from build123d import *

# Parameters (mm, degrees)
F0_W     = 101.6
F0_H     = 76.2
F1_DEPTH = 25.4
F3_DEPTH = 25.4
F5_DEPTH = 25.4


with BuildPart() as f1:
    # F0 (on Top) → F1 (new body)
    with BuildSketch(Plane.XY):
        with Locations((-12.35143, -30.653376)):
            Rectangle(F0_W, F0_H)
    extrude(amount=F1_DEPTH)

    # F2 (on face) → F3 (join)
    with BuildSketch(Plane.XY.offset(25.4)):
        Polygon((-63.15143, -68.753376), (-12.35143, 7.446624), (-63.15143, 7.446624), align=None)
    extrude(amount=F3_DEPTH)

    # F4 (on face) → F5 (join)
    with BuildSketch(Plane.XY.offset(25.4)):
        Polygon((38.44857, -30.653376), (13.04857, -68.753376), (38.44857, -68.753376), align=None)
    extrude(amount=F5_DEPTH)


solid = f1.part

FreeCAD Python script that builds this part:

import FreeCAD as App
import Part
import Sketcher
Q = App.Units.Quantity

doc = App.newDocument("Part")
body = doc.addObject("PartDesign::Body", "Body")

sketch1 = body.newObject("Sketcher::SketchObject", "Sketch")
sketch1.AttachmentSupport = (doc.getObject("XY_Plane"), [""])
sketch1.MapMode = "FlatFace"
sketch1.addGeometry([
    Part.LineSegment(App.Vector(-63, 7, 0), App.Vector(-63, -69, 0)),
    Part.LineSegment(App.Vector(-63, -69, 0), App.Vector(38, -69, 0)),
    Part.LineSegment(App.Vector(38, -69, 0), App.Vector(38, 7, 0)),
    Part.LineSegment(App.Vector(38, 7, 0), App.Vector(-63, 7, 0)),
], False)
sketch1.addConstraint([
    Sketcher.Constraint("Coincident", 0, 2, 1, 1),
    Sketcher.Constraint("Coincident", 1, 2, 2, 1),
    Sketcher.Constraint("Coincident", 2, 2, 3, 1),
    Sketcher.Constraint("Coincident", 3, 2, 0, 1),
    Sketcher.Constraint("Vertical", 0),
    Sketcher.Constraint("Horizontal", 1),
    Sketcher.Constraint("Vertical", 2),
    Sketcher.Constraint("Horizontal", 3),
    Sketcher.Constraint("DistanceX", 1, 1, 1, 2, Q("4 in")),
    Sketcher.Constraint("DistanceY", 0, 2, 0, 1, Q("3 in")),
    Sketcher.Constraint("DistanceX", 0, 2, -1, 1, 63.15143),
    Sketcher.Constraint("DistanceY", 0, 2, -1, 1, 68.753376),
])
pad1 = body.newObject("PartDesign::Pad", "Pad")
pad1.Profile = sketch1
pad1.Length = Q("1 in")

sketch2 = body.newObject("Sketcher::SketchObject", "Sketch001")
sketch2.AttachmentSupport = (doc.getObject("XY_Plane"), [""])
sketch2.MapMode = "FlatFace"
sketch2.AttachmentOffset = App.Placement(App.Vector(0, 0, 1 * 25.4), App.Rotation())
sketch2.addGeometry([
    Part.LineSegment(App.Vector(-63, -69, 0), App.Vector(-12, 7, 0)),
    Part.LineSegment(App.Vector(-12, 7, 0), App.Vector(-63, 7, 0)),
    Part.LineSegment(App.Vector(-63, 7, 0), App.Vector(-63, -69, 0)),
], False)
sketch2.addConstraint([
    Sketcher.Constraint("Coincident", 0, 2, 1, 1),
    Sketcher.Constraint("Coincident", 1, 2, 2, 1),
    Sketcher.Constraint("Coincident", 2, 2, 0, 1),
    Sketcher.Constraint("Horizontal", 1),
    Sketcher.Constraint("Vertical", 2),
    Sketcher.Constraint("DistanceX", 1, 2, 1, 1, Q("2 in")),
    Sketcher.Constraint("DistanceY", 2, 2, 2, 1, Q("3 in")),
    Sketcher.Constraint("DistanceX", 0, 2, -1, 1, 12.35143),
    Sketcher.Constraint("DistanceY", -1, 1, 0, 2, 7.446624),
])
pad2 = body.newObject("PartDesign::Pad", "Pad001")
pad2.Profile = sketch2
pad2.Length = Q("1 in")

sketch3 = body.newObject("Sketcher::SketchObject", "Sketch002")
sketch3.AttachmentSupport = (doc.getObject("XY_Plane"), [""])
sketch3.MapMode = "FlatFace"
sketch3.AttachmentOffset = App.Placement(App.Vector(0, 0, 1 * 25.4), App.Rotation())
sketch3.addGeometry([
    Part.LineSegment(App.Vector(38, -31, 0), App.Vector(13, -69, 0)),
    Part.LineSegment(App.Vector(13, -69, 0), App.Vector(38, -69, 0)),
    Part.LineSegment(App.Vector(38, -69, 0), App.Vector(38, -31, 0)),
], False)
sketch3.addConstraint([
    Sketcher.Constraint("Coincident", 0, 2, 1, 1),
    Sketcher.Constraint("Coincident", 1, 2, 2, 1),
    Sketcher.Constraint("Coincident", 2, 2, 0, 1),
    Sketcher.Constraint("Horizontal", 1),
    Sketcher.Constraint("Vertical", 2),
    Sketcher.Constraint("DistanceX", 1, 1, 1, 2, Q("1 in")),
    Sketcher.Constraint("DistanceY", 2, 1, 2, 2, Q("1.5 in")),
    Sketcher.Constraint("DistanceX", -1, 1, 0, 2, 13.04857),
    Sketcher.Constraint("DistanceY", 0, 2, -1, 1, 68.753376),
])
pad3 = body.newObject("PartDesign::Pad", "Pad002")
pad3.Profile = sketch3
pad3.Length = Q("1 in")

doc.recompute()
